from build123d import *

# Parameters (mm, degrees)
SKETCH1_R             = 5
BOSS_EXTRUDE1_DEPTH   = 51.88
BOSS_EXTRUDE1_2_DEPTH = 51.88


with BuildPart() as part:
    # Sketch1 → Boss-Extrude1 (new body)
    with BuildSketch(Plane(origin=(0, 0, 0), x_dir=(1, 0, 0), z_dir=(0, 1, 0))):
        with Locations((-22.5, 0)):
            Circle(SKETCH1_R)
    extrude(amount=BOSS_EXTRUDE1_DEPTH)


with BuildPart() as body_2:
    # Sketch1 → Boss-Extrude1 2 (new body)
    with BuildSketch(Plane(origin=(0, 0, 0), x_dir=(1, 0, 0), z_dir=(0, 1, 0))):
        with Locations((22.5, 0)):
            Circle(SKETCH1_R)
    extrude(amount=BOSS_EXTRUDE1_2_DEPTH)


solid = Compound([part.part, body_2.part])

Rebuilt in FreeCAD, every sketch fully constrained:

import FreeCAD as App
import Part
import Sketcher
from FreeCAD import Vector

doc = App.newDocument("Part")
body = doc.addObject("PartDesign::Body", "Body")

# Sketch on XZ plane
sketch1 = body.newObject("Sketcher::SketchObject", "Sketch")
sketch1.AttachmentSupport = (doc.getObject("XZ_Plane"), [""])
sketch1.MapMode = "FlatFace"
sketch1.addGeometry(Part.Circle(Vector(-22, 0, 0), Vector(0, 0, 1), 5), False)
sketch1.addConstraint([
    Sketcher.Constraint("PointOnObject", 0, 3, -1),
    Sketcher.Constraint("Diameter", 0, 10.0),
    Sketcher.Constraint("DistanceX", 0, 3, -1, 1, 22.5),
])
pad1 = body.newObject("PartDesign::Pad", "Pad")
pad1.Profile = sketch1
pad1.Length = 51.88
pad1.Reversed = True
body2 = doc.addObject("PartDesign::Body", "Body001")

# Sketch on XZ plane
sketch2 = body2.newObject("Sketcher::SketchObject", "Sketch001")
sketch2.AttachmentSupport = (doc.getObject("XZ_Plane001"), [""])
sketch2.MapMode = "FlatFace"
sketch2.addGeometry(Part.Circle(Vector(22, 0, 0), Vector(0, 0, 1), 5), False)
sketch2.addConstraint([
    Sketcher.Constraint("PointOnObject", 0, 3, -1),
    Sketcher.Constraint("Diameter", 0, 10.0),
    Sketcher.Constraint("DistanceX", -1, 1, 0, 3, 22.5),
])
pad2 = body2.newObject("PartDesign::Pad", "Pad001")
pad2.Profile = sketch2
pad2.Length = 51.88
pad2.Reversed = True

doc.recompute()
